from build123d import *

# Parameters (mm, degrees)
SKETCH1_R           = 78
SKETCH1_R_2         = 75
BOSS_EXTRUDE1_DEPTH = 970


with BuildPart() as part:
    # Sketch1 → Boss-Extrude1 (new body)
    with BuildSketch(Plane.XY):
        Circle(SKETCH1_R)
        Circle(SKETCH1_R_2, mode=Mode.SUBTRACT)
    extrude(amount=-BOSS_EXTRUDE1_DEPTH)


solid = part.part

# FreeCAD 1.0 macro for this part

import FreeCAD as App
import Part
import Sketcher

V = App.Vector
Q = App.Units.Quantity

doc = App.newDocument("Part")
body = doc.addObject("PartDesign::Body", "Body")

sketch1 = body.newObject("Sketcher::SketchObject", "Sketch")
sketch1.AttachmentSupport = (doc.getObject("XY_Plane"), [""])
sketch1.MapMode = "FlatFace"
sketch1.addGeometry([
    Part.Circle(V(0, 0, 0), V(0, 0, 1), 78),
    Part.Circle(V(0, 0, 0), V(0, 0, 1), 75),
], False)
sketch1.addConstraint([
    Sketcher.Constraint("Coincident", 0, 3, -1, 1),
    Sketcher.Constraint("Coincident", 1, 3, -1, 1),
    Sketcher.Constraint("Diameter", 0, Q("156 mm")),
    Sketcher.Constraint("Diameter", 1, Q("150 mm")),
])
pad1 = body.newObject("PartDesign::Pad", "Pad")
pad1.Profile = sketch1
pad1.Length = 970
pad1.Reversed = True

doc.recompute()
